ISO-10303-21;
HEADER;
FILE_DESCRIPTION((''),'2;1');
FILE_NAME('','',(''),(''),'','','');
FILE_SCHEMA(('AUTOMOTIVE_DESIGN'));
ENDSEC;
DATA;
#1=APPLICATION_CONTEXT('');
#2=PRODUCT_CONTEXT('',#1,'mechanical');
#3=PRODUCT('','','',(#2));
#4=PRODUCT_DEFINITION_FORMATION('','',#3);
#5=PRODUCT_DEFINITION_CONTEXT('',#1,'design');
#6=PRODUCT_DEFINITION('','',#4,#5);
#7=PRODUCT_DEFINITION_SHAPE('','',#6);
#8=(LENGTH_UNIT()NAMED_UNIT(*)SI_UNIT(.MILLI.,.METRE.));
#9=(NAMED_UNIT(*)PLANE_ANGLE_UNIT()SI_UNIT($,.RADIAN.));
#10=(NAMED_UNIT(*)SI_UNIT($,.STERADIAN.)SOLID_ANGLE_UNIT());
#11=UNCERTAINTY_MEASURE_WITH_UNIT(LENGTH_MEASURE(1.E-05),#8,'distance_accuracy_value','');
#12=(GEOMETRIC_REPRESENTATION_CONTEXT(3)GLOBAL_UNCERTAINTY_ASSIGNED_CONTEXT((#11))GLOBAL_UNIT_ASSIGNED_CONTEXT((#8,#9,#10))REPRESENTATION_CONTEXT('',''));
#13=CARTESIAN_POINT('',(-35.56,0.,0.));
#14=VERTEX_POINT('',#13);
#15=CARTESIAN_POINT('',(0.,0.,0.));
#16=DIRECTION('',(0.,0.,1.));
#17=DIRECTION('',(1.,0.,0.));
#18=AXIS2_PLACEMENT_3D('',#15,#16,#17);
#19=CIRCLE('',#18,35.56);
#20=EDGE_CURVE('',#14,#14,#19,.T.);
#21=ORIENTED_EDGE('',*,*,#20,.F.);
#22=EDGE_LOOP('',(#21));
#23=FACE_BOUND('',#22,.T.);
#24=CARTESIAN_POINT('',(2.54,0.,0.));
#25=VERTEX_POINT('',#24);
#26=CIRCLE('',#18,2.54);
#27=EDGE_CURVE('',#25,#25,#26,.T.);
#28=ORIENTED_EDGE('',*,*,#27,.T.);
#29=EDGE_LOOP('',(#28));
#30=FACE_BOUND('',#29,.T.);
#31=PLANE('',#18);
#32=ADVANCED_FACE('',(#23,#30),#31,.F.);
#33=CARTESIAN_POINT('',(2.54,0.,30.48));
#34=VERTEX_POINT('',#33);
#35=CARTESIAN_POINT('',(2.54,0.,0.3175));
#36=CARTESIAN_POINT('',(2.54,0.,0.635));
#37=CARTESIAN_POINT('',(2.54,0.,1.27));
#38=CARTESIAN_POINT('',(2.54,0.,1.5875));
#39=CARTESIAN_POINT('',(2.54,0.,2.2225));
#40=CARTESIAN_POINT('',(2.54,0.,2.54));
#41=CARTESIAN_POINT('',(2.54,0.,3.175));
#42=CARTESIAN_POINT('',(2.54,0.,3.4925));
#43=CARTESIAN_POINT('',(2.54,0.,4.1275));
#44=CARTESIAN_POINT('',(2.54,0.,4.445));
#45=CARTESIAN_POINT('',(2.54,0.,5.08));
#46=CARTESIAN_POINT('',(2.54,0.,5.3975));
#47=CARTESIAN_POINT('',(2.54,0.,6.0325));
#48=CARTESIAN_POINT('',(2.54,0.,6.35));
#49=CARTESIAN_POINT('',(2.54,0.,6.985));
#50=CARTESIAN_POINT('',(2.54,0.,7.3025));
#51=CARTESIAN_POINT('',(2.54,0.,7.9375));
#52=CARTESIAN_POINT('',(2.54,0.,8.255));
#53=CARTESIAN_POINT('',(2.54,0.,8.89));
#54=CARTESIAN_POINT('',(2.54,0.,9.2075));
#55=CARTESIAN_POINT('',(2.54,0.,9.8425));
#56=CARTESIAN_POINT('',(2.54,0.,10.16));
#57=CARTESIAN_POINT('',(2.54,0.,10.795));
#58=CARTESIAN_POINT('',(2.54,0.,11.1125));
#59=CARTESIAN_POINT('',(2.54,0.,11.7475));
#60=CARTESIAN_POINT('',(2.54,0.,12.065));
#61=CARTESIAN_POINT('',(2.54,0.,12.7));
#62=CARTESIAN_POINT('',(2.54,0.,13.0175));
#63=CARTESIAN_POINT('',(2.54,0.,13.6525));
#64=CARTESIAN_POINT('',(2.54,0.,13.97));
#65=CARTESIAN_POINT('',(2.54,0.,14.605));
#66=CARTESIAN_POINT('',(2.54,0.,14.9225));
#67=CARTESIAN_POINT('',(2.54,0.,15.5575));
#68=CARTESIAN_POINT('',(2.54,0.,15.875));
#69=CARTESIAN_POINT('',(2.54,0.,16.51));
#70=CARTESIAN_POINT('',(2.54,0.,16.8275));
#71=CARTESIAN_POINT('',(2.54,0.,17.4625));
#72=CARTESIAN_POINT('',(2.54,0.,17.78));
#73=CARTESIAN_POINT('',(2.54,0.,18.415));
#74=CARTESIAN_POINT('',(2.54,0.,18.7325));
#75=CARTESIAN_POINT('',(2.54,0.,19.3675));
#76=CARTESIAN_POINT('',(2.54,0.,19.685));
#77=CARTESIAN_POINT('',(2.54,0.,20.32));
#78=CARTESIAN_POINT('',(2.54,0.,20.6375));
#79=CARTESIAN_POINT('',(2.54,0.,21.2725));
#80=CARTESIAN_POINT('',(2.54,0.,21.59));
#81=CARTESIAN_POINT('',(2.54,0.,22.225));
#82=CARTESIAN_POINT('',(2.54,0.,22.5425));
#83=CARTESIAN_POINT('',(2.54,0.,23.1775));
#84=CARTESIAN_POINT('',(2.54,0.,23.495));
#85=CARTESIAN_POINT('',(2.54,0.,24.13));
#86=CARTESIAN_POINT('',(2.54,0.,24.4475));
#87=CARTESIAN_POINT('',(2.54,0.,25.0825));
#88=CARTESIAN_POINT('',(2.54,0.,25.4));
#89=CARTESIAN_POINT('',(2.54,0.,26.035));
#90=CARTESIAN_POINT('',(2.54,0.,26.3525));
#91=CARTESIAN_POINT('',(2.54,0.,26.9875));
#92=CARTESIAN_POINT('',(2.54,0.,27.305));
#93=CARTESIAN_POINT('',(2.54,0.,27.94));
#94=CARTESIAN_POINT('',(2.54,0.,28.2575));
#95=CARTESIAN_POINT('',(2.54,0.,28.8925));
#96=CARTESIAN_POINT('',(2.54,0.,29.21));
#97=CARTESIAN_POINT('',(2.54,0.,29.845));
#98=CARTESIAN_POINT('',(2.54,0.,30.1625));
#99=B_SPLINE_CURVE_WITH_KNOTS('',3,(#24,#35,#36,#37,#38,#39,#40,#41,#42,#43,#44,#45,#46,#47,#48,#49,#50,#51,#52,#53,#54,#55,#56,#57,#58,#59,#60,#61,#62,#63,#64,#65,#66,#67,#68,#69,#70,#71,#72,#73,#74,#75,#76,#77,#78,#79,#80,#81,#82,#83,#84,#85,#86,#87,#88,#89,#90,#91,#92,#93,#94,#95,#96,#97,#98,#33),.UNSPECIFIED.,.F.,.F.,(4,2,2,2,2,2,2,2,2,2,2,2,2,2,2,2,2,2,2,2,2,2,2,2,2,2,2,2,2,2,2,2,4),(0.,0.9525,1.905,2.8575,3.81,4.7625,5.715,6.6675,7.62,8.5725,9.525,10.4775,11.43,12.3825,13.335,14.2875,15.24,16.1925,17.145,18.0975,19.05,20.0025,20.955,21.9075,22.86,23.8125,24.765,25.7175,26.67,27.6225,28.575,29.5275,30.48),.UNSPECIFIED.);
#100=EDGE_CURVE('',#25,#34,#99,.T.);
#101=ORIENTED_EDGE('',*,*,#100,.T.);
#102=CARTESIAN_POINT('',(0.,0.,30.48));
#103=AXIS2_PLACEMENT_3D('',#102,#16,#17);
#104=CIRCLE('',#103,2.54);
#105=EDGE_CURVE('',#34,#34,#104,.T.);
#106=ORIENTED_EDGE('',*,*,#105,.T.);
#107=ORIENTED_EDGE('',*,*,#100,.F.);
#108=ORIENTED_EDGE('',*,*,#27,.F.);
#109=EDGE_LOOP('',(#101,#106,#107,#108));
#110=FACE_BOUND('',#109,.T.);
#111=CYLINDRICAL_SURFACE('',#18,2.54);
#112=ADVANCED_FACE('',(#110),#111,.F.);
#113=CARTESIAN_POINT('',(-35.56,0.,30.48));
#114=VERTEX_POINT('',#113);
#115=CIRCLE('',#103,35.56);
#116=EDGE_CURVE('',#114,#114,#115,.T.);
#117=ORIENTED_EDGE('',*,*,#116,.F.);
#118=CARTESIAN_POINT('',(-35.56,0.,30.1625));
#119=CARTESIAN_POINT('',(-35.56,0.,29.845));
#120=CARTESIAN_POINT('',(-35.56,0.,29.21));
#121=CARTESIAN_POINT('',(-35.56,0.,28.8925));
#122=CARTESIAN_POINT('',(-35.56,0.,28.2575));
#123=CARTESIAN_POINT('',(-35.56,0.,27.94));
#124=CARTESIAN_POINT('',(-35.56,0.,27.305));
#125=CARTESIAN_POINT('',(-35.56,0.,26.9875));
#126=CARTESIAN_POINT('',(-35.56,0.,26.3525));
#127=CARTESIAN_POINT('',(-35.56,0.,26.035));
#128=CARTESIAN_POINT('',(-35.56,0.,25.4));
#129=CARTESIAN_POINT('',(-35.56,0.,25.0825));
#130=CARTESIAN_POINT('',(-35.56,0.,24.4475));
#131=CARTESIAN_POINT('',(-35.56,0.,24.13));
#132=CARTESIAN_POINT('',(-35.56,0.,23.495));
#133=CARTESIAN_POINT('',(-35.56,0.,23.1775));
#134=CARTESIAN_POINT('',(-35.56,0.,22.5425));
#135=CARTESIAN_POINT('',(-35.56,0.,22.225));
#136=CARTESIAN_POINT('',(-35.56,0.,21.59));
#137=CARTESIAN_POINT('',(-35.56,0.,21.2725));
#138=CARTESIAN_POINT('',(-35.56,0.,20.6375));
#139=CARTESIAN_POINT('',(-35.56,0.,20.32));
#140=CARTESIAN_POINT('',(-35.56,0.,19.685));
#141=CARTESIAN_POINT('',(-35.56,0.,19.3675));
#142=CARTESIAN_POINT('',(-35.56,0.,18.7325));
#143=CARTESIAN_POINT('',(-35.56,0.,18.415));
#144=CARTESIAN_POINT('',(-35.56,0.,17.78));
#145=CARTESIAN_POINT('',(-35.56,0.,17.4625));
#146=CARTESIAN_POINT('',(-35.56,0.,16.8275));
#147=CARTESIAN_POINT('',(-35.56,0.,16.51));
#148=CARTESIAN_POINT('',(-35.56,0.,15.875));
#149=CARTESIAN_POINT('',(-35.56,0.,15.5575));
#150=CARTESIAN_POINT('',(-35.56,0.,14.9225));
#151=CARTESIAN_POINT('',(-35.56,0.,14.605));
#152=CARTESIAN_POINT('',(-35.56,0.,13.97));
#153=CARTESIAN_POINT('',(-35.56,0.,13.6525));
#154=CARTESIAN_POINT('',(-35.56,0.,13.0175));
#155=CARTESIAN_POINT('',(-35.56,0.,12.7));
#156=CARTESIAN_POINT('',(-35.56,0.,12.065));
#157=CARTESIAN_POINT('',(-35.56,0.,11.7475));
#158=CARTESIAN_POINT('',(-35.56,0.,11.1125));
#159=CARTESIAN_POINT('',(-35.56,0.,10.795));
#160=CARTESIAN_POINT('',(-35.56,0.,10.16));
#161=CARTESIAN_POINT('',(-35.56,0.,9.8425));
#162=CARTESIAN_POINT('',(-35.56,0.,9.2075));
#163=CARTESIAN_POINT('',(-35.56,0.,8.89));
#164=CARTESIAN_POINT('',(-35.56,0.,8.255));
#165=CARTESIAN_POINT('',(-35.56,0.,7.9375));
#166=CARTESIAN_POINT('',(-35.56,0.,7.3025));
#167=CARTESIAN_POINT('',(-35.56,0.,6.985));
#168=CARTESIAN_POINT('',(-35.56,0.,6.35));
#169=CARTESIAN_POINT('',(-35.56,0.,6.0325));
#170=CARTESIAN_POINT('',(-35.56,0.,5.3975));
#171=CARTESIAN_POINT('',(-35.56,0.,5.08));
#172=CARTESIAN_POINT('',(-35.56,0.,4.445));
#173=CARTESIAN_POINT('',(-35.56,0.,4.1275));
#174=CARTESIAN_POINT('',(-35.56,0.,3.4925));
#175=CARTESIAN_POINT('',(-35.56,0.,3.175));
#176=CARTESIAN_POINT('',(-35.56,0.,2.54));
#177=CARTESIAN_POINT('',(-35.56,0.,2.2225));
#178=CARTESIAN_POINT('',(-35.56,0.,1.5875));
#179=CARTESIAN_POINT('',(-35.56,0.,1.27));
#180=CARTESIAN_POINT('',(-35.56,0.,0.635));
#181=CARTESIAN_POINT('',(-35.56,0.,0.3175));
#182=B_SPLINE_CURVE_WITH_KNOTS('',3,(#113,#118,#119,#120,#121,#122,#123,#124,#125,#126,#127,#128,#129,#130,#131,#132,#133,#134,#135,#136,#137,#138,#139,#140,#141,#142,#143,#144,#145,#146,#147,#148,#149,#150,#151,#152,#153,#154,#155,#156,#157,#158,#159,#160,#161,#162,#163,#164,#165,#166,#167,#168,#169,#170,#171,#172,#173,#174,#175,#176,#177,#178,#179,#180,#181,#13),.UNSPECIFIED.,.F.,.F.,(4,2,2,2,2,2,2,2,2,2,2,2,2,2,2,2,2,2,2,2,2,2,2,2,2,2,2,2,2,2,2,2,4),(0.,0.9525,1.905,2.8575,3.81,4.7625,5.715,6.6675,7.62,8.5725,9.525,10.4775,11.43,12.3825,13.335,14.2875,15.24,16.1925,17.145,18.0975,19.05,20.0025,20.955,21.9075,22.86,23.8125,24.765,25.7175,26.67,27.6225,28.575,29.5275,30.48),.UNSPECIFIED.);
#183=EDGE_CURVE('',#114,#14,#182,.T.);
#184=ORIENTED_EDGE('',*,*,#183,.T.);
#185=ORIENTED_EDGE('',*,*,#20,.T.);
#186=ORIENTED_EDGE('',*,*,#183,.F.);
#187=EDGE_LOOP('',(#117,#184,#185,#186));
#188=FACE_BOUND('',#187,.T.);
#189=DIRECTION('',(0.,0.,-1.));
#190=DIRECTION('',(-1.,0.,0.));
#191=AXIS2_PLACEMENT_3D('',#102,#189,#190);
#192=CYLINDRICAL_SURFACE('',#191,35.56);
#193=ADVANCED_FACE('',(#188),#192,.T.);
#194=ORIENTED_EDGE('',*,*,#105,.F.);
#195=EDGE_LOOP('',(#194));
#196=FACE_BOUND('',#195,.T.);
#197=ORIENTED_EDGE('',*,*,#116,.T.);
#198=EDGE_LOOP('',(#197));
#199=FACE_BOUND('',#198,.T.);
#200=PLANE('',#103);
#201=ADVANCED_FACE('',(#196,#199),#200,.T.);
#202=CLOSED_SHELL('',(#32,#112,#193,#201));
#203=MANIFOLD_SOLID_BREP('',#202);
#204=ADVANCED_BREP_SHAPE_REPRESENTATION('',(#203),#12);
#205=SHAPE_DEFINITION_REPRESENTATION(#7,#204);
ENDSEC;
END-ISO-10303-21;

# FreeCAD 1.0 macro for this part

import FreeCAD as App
import Part
import Sketcher

V = App.Vector
Q = App.Units.Quantity

doc = App.newDocument("Part")
params = doc.addObject("Spreadsheet::Sheet", "Params")
for row, (alias, value) in enumerate([
    ("sketch1_diameter", "2.8 in"),
    ("pad1_length", "1.2 in"),
    ("sketch2_diameter", "0.2 in"),
    ("pocket1_length", "1.2 in"),
], start=1):
    params.set(f"A{row}", alias)
    params.set(f"B{row}", "=" + value)
    params.setAlias(f"B{row}", alias)

body = doc.addObject("PartDesign::Body", "Body")

# Sketch on XY plane
sketch1 = body.newObject("Sketcher::SketchObject", "Sketch")
sketch1.AttachmentSupport = (doc.getObject("XY_Plane"), [""])
sketch1.MapMode = "FlatFace"
sketch1.addGeometry(Part.Circle(V(0, 0, 0), V(0, 0, 1), 35.56), False)
sketch1.addConstraint(Sketcher.Constraint("Coincident", 0, 3, -1, 1))
sketch1.addConstraint(Sketcher.Constraint("Diameter", 0, Q("2.8 in")))
sketch1.setExpression("Constraints[1]", "Params.sketch1_diameter")
pad1 = body.newObject("PartDesign::Pad", "Pad")
pad1.Profile = sketch1
pad1.setExpression("Length", "Params.pad1_length")

# Sketch on XY plane
sketch2 = body.newObject("Sketcher::SketchObject", "Sketch001")
sketch2.AttachmentSupport = (doc.getObject("XY_Plane"), [""])
sketch2.MapMode = "FlatFace"
sketch2.AttachmentOffset = App.Placement(V(0, 0, 1.2 * 25.4), App.Rotation())
sketch2.addGeometry(Part.Circle(V(0, 0, 0), V(0, 0, 1), 2.54), False)
sketch2.addConstraint(Sketcher.Constraint("Coincident", 0, 3, -1, 1))
sketch2.addConstraint(Sketcher.Constraint("Diameter", 0, Q("0.2 in")))
sketch2.setExpression("Constraints[1]", "Params.sketch2_diameter")
pocket1 = body.newObject("PartDesign::Pocket", "Pocket")
pocket1.Profile = sketch2
pocket1.setExpression("Length", "Params.pocket1_length")

doc.recompute()
